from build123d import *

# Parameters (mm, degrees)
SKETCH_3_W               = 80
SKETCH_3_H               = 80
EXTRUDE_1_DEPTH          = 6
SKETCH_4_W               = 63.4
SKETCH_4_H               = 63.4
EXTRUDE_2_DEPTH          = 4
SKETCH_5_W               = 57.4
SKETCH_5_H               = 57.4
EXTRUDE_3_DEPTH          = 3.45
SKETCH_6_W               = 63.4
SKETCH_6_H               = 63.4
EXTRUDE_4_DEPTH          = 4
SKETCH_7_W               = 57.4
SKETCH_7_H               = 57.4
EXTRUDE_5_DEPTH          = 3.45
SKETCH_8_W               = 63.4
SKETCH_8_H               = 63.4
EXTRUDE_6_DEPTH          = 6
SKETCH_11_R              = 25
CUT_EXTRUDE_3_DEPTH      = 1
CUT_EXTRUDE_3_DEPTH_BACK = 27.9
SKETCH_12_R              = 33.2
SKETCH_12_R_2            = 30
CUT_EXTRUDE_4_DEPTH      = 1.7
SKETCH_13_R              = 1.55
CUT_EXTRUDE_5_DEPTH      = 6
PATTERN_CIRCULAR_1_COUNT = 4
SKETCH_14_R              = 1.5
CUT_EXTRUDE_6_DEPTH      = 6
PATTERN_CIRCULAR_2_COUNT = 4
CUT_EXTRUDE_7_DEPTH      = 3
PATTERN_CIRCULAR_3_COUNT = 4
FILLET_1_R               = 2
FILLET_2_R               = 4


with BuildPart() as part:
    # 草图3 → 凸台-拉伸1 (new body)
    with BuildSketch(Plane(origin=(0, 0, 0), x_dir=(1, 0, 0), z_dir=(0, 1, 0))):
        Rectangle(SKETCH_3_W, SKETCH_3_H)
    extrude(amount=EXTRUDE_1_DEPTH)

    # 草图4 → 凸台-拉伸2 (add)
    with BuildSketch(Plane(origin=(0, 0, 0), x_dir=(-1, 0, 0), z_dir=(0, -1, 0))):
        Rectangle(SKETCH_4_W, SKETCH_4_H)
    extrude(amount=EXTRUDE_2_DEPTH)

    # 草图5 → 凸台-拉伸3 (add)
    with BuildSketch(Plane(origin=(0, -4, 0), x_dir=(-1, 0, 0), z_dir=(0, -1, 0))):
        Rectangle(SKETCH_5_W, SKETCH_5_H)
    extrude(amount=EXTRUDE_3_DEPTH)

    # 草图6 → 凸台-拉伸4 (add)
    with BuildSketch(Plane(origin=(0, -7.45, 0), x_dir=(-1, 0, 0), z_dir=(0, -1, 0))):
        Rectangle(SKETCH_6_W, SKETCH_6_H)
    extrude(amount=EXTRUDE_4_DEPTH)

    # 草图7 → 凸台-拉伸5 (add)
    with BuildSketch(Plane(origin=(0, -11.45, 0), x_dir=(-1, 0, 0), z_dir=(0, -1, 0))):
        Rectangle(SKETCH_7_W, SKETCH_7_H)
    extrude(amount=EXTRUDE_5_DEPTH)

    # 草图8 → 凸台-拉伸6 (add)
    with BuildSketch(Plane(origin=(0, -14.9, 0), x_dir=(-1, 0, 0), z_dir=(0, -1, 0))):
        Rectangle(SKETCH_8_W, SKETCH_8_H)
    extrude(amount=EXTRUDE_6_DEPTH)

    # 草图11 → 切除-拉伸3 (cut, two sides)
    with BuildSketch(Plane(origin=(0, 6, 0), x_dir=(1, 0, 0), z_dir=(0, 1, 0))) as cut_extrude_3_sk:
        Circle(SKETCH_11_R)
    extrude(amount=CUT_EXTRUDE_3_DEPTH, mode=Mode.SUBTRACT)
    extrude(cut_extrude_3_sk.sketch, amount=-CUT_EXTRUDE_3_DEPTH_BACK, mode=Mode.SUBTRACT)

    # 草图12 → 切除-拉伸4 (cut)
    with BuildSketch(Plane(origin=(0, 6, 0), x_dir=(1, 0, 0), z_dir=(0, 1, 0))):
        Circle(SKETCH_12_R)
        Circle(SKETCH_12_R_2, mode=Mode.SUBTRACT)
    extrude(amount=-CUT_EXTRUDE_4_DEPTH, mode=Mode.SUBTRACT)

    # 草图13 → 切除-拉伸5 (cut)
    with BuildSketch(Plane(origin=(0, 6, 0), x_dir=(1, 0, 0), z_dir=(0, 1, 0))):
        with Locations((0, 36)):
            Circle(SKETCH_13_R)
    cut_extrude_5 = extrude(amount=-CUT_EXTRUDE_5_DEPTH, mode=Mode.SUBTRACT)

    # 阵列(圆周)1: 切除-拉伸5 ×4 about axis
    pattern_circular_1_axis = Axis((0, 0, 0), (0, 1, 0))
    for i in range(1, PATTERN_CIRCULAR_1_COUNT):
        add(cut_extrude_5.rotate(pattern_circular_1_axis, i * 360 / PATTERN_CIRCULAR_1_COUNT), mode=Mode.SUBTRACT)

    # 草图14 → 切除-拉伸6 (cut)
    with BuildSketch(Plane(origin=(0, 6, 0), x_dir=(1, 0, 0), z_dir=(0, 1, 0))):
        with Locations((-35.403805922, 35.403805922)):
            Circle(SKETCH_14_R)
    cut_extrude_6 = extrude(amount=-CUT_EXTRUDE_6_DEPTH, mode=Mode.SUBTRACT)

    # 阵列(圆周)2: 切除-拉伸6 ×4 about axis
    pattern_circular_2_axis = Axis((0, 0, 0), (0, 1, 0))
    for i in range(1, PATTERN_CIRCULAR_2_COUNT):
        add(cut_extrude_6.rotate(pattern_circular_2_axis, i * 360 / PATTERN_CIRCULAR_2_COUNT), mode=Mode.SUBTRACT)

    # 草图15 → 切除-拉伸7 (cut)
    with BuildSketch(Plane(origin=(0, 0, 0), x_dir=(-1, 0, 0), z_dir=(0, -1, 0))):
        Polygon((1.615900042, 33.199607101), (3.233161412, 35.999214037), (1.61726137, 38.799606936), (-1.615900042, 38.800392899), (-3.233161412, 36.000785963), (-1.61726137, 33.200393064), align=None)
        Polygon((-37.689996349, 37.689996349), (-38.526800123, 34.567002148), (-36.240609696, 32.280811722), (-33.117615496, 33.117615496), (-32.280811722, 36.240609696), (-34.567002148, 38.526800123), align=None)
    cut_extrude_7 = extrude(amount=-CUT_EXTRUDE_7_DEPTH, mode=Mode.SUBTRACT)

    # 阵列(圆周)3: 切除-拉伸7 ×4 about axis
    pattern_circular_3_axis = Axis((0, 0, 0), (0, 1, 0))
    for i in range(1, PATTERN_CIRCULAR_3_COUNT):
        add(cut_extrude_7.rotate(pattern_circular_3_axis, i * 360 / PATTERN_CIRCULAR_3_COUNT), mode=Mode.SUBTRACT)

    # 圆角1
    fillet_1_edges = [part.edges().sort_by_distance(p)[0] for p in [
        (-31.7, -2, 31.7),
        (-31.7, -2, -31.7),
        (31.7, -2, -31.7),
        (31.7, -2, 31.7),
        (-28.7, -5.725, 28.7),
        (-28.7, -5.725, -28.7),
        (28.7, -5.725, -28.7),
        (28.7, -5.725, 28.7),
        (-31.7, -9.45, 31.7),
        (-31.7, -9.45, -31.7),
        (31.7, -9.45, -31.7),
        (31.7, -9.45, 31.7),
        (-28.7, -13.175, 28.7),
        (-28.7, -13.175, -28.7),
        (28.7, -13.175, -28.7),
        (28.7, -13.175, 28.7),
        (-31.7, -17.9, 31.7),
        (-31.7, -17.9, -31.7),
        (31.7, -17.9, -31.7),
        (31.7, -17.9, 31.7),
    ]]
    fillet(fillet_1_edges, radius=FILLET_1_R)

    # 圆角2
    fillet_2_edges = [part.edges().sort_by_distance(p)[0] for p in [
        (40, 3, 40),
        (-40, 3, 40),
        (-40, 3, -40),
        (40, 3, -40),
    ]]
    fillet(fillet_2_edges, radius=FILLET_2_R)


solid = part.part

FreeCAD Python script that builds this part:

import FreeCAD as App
import Part
import Sketcher
Q = App.Units.Quantity


def edges_at(feature, points):
    """Names of the edges that pass closest to the given points."""
    edges = feature.Shape.Edges
    near = lambda p: min(range(len(edges)), key=lambda i: edges[i].distToShape(Part.Vertex(*p))[0])
    return sorted({f"Edge{near(p) + 1}" for p in points})


def add_polygon(sketch, points):
    """Adds a closed chain of lines whose ends are joined by coincident constraints."""
    first, n = sketch.GeometryCount, len(points)
    for a, b in zip(points, points[1:] + points[:1]):
        sketch.addGeometry(Part.LineSegment(App.Vector(*a, 0), App.Vector(*b, 0)), False)
    for i in range(n):
        sketch.addConstraint(Sketcher.Constraint("Coincident", first + i, 2, first + (i + 1) % n, 1))

doc = App.newDocument("Part")
params = doc.addObject("Spreadsheet::Sheet", "Params")
for row, (alias, value) in enumerate([
    ("sketch1_width", "80 mm"),
    ("pad1_length", "6 mm"),
    ("sketch2_width", "63.4 mm"),
    ("pad2_length", "4 mm"),
    ("sketch3_width", "57.4 mm"),
    ("pad3_length", "3.45 mm"),
    ("sketch4_width", "63.4 mm"),
    ("pad4_length", "4 mm"),
    ("sketch5_width", "57.4 mm"),
    ("pad5_length", "3.45 mm"),
    ("sketch6_width", "63.4 mm"),
    ("pad6_length", "6 mm"),
    ("sketch7_diameter", "50 mm"),
    ("sketch8_diameter", "60 mm"),
    ("sketch8_diameter2", "66.4 mm"),
    ("pocket2_length", "1.7 mm"),
    ("sketch9_diameter", "3.1 mm"),
    ("pocket3_length", "6 mm"),
    ("sketch10_diameter", "3 mm"),
    ("pocket4_length", "6 mm"),
    ("pocket5_length", "3 mm"),
    ("fillet_radius", "2 mm"),
    ("fillet2_radius", "4 mm"),
], start=1):
    params.set(f"A{row}", alias)
    params.set(f"B{row}", "=" + value)
    params.setAlias(f"B{row}", alias)

body = doc.addObject("PartDesign::Body", "Body")

sketch1 = body.newObject("Sketcher::SketchObject", "Sketch")
sketch1.AttachmentSupport = (doc.getObject("XZ_Plane"), [""])
sketch1.MapMode = "FlatFace"
add_polygon(sketch1, [(-40, -40), (-40, 40), (40, 40), (40, -40)])
sketch1.addConstraint(Sketcher.Constraint("Vertical", 0))
sketch1.addConstraint(Sketcher.Constraint("Horizontal", 1))
sketch1.addConstraint(Sketcher.Constraint("Vertical", 2))
sketch1.addConstraint(Sketcher.Constraint("Horizontal", 3))
sketch1.addConstraint(Sketcher.Constraint("Symmetric", 0, 2, 2, 2, -1, 1))
sketch1.addConstraint(Sketcher.Constraint("Equal", 3, 0))
sketch1.addConstraint(Sketcher.Constraint("DistanceX", 1, 1, 1, 2, Q("80 mm")))
sketch1.setExpression("Constraints[10]", "Params.sketch1_width")
pad1 = body.newObject("PartDesign::Pad", "Pad")
pad1.Profile = sketch1
pad1.setExpression("Length", "Params.pad1_length")
pad1.Reversed = True

sketch2 = body.newObject("Sketcher::SketchObject", "Sketch001")
sketch2.AttachmentSupport = (doc.getObject("XZ_Plane"), [""])
sketch2.MapMode = "FlatFace"
add_polygon(sketch2, [(31.7, -31.7), (31.7, 31.7), (-31.7, 31.7), (-31.7, -31.7)])
sketch2.addConstraint(Sketcher.Constraint("Vertical", 0))
sketch2.addConstraint(Sketcher.Constraint("Horizontal", 1))
sketch2.addConstraint(Sketcher.Constraint("Vertical", 2))
sketch2.addConstraint(Sketcher.Constraint("Horizontal", 3))
sketch2.addConstraint(Sketcher.Constraint("Symmetric", 0, 2, 2, 2, -1, 1))
sketch2.addConstraint(Sketcher.Constraint("Equal", 3, 0))
sketch2.addConstraint(Sketcher.Constraint("DistanceX", 1, 2, 1, 1, Q("63.4 mm")))
sketch2.setExpression("Constraints[10]", "Params.sketch2_width")
pad2 = body.newObject("PartDesign::Pad", "Pad001")
pad2.Profile = sketch2
pad2.setExpression("Length", "Params.pad2_length")

sketch3 = body.newObject("Sketcher::SketchObject", "Sketch002")
sketch3.AttachmentSupport = (doc.getObject("XZ_Plane"), [""])
sketch3.MapMode = "FlatFace"
sketch3.AttachmentOffset = App.Placement(App.Vector(0, 0, 4), App.Rotation())
add_polygon(sketch3, [(28.7, -28.7), (28.7, 28.7), (-28.7, 28.7), (-28.7, -28.7)])
sketch3.addConstraint(Sketcher.Constraint("Vertical", 0))
sketch3.addConstraint(Sketcher.Constraint("Horizontal", 1))
sketch3.addConstraint(Sketcher.Constraint("Vertical", 2))
sketch3.addConstraint(Sketcher.Constraint("Horizontal", 3))
sketch3.addConstraint(Sketcher.Constraint("Symmetric", 0, 2, 2, 2, -1, 1))
sketch3.addConstraint(Sketcher.Constraint("Equal", 3, 0))
sketch3.addConstraint(Sketcher.Constraint("DistanceX", 1, 2, 1, 1, Q("57.4 mm")))
sketch3.setExpression("Constraints[10]", "Params.sketch3_width")
pad3 = body.newObject("PartDesign::Pad", "Pad002")
pad3.Profile = sketch3
pad3.setExpression("Length", "Params.pad3_length")

sketch4 = body.newObject("Sketcher::SketchObject", "Sketch003")
sketch4.AttachmentSupport = (doc.getObject("XZ_Plane"), [""])
sketch4.MapMode = "FlatFace"
sketch4.AttachmentOffset = App.Placement(App.Vector(0, 0, 7.45), App.Rotation())
add_polygon(sketch4, [(31.7, -31.7), (31.7, 31.7), (-31.7, 31.7), (-31.7, -31.7)])
sketch4.addConstraint(Sketcher.Constraint("Vertical", 0))
sketch4.addConstraint(Sketcher.Constraint("Horizontal", 1))
sketch4.addConstraint(Sketcher.Constraint("Vertical", 2))
sketch4.addConstraint(Sketcher.Constraint("Horizontal", 3))
sketch4.addConstraint(Sketcher.Constraint("Symmetric", 0, 2, 2, 2, -1, 1))
sketch4.addConstraint(Sketcher.Constraint("Equal", 3, 0))
sketch4.addConstraint(Sketcher.Constraint("DistanceX", 1, 2, 1, 1, Q("63.4 mm")))
sketch4.setExpression("Constraints[10]", "Params.sketch4_width")
pad4 = body.newObject("PartDesign::Pad", "Pad003")
pad4.Profile = sketch4
pad4.setExpression("Length", "Params.pad4_length")

sketch5 = body.newObject("Sketcher::SketchObject", "Sketch004")
sketch5.AttachmentSupport = (doc.getObject("XZ_Plane"), [""])
sketch5.MapMode = "FlatFace"
sketch5.AttachmentOffset = App.Placement(App.Vector(0, 0, 11.45), App.Rotation())
add_polygon(sketch5, [(28.7, -28.7), (28.7, 28.7), (-28.7, 28.7), (-28.7, -28.7)])
sketch5.addConstraint(Sketcher.Constraint("Vertical", 0))
sketch5.addConstraint(Sketcher.Constraint("Horizontal", 1))
sketch5.addConstraint(Sketcher.Constraint("Vertical", 2))
sketch5.addConstraint(Sketcher.Constraint("Horizontal", 3))
sketch5.addConstraint(Sketcher.Constraint("Symmetric", 0, 2, 2, 2, -1, 1))
sketch5.addConstraint(Sketcher.Constraint("Equal", 3, 0))
sketch5.addConstraint(Sketcher.Constraint("DistanceX", 1, 2, 1, 1, Q("57.4 mm")))
sketch5.setExpression("Constraints[10]", "Params.sketch5_width")
pad5 = body.newObject("PartDesign::Pad", "Pad004")
pad5.Profile = sketch5
pad5.setExpression("Length", "Params.pad5_length")

sketch6 = body.newObject("Sketcher::SketchObject", "Sketch005")
sketch6.AttachmentSupport = (doc.getObject("XZ_Plane"), [""])
sketch6.MapMode = "FlatFace"
sketch6.AttachmentOffset = App.Placement(App.Vector(0, 0, 14.9), App.Rotation())
add_polygon(sketch6, [(31.7, -31.7), (31.7, 31.7), (-31.7, 31.7), (-31.7, -31.7)])
sketch6.addConstraint(Sketcher.Constraint("Vertical", 0))
sketch6.addConstraint(Sketcher.Constraint("Horizontal", 1))
sketch6.addConstraint(Sketcher.Constraint("Vertical", 2))
sketch6.addConstraint(Sketcher.Constraint("Horizontal", 3))
sketch6.addConstraint(Sketcher.Constraint("Symmetric", 0, 2, 2, 2, -1, 1))
sketch6.addConstraint(Sketcher.Constraint("Equal", 3, 0))
sketch6.addConstraint(Sketcher.Constraint("DistanceX", 1, 2, 1, 1, Q("63.4 mm")))
sketch6.setExpression("Constraints[10]", "Params.sketch6_width")
pad6 = body.newObject("PartDesign::Pad", "Pad005")
pad6.Profile = sketch6
pad6.setExpression("Length", "Params.pad6_length")

sketch7 = body.newObject("Sketcher::SketchObject", "Sketch006")
sketch7.AttachmentSupport = (doc.getObject("XZ_Plane"), [""])
sketch7.MapMode = "FlatFace"
sketch7.AttachmentOffset = App.Placement(App.Vector(0, 0, -6), App.Rotation())
sketch7.addGeometry(Part.Circle(App.Vector(0, 0, 0), App.Vector(0, 0, 1), 25), False)
sketch7.addConstraint(Sketcher.Constraint("Coincident", 0, 3, -1, 1))
sketch7.addConstraint(Sketcher.Constraint("Diameter", 0, Q("50 mm")))
sketch7.setExpression("Constraints[1]", "Params.sketch7_diameter")
pocket1 = body.newObject("PartDesign::Pocket", "Pocket")
pocket1.Profile = sketch7
pocket1.Type = "ThroughAll"
pocket1.Midplane = True

sketch8 = body.newObject("Sketcher::SketchObject", "Sketch007")
sketch8.AttachmentSupport = (doc.getObject("XZ_Plane"), [""])
sketch8.MapMode = "FlatFace"
sketch8.AttachmentOffset = App.Placement(App.Vector(0, 0, -6), App.Rotation())
sketch8.addGeometry(Part.Circle(App.Vector(0, 0, 0), App.Vector(0, 0, 1), 33.2), False)
sketch8.addGeometry(Part.Circle(App.Vector(0, 0, 0), App.Vector(0, 0, 1), 30), False)
sketch8.addConstraint(Sketcher.Constraint("Coincident", 0, 3, -1, 1))
sketch8.addConstraint(Sketcher.Constraint("Coincident", 1, 3, -1, 1))
sketch8.addConstraint(Sketcher.Constraint("Diameter", 1, Q("60 mm")))
sketch8.addConstraint(Sketcher.Constraint("Diameter", 0, Q("66.4 mm")))
sketch8.setExpression("Constraints[2]", "Params.sketch8_diameter")
sketch8.setExpression("Constraints[3]", "Params.sketch8_diameter2")
pocket2 = body.newObject("PartDesign::Pocket", "Pocket001")
pocket2.Profile = sketch8
pocket2.setExpression("Length", "Params.pocket2_length")
pocket2.Reversed = True

sketch9 = body.newObject("Sketcher::SketchObject", "Sketch008")
sketch9.AttachmentSupport = (doc.getObject("XZ_Plane"), [""])
sketch9.MapMode = "FlatFace"
sketch9.AttachmentOffset = App.Placement(App.Vector(0, 0, -6), App.Rotation())
sketch9.addGeometry(Part.Circle(App.Vector(0, -36, 0), App.Vector(0, 0, 1), 1.55), False)
sketch9.addConstraint(Sketcher.Constraint("PointOnObject", 0, 3, -2))
sketch9.addConstraint(Sketcher.Constraint("Diameter", 0, Q("3.1 mm")))
sketch9.addConstraint(Sketcher.Constraint("DistanceY", 0, 3, -1, 1, Q("36 mm")))
sketch9.setExpression("Constraints[1]", "Params.sketch9_diameter")
pocket3 = body.newObject("PartDesign::Pocket", "Pocket002")
pocket3.Profile = sketch9
pocket3.setExpression("Length", "Params.pocket3_length")
pocket3.Reversed = True
doc.recompute()

polarpattern = body.newObject("PartDesign::PolarPattern", "PolarPattern")
polarpattern.Originals = [pocket3]
polarpattern.Axis = (doc.getObject("Y_Axis"), [""])
polarpattern.Angle = 360
polarpattern.Occurrences = 4
body.Tip = polarpattern

sketch10 = body.newObject("Sketcher::SketchObject", "Sketch009")
sketch10.AttachmentSupport = (doc.getObject("XZ_Plane"), [""])
sketch10.MapMode = "FlatFace"
sketch10.AttachmentOffset = App.Placement(App.Vector(0, 0, -6), App.Rotation())
sketch10.addGeometry(Part.Circle(App.Vector(-35.403806, -35.403806, 0), App.Vector(0, 0, 1), 1.5), False)
sketch10.addConstraint(Sketcher.Constraint("Diameter", 0, Q("3 mm")))
sketch10.addConstraint(Sketcher.Constraint("DistanceX", 0, 3, -1, 1, Q("35.403806 mm")))
sketch10.addConstraint(Sketcher.Constraint("DistanceY", 0, 3, -1, 1, Q("35.403806 mm")))
sketch10.setExpression("Constraints[0]", "Params.sketch10_diameter")
pocket4 = body.newObject("PartDesign::Pocket", "Pocket003")
pocket4.Profile = sketch10
pocket4.setExpression("Length", "Params.pocket4_length")
pocket4.Reversed = True
doc.recompute()

polarpattern2 = body.newObject("PartDesign::PolarPattern", "PolarPattern001")
polarpattern2.Originals = [pocket4]
polarpattern2.Axis = (doc.getObject("Y_Axis"), [""])
polarpattern2.Angle = 360
polarpattern2.Occurrences = 4
body.Tip = polarpattern2

sketch11 = body.newObject("Sketcher::SketchObject", "Sketch010")
sketch11.AttachmentSupport = (doc.getObject("XZ_Plane"), [""])
sketch11.MapMode = "FlatFace"
add_polygon(sketch11, [(-1.6159, -33.199607), (-3.233161, -35.999214), (-1.617261, -38.799607), (1.6159, -38.800393), (3.233161, -36.000786), (1.617261, -33.200393)])
add_polygon(sketch11, [(37.689996, -37.689996), (38.5268, -34.567002), (36.24061, -32.280812), (33.117615, -33.117615), (32.280812, -36.24061), (34.567002, -38.5268)])
sketch11.addConstraint(Sketcher.Constraint("Parallel", 0, 3))
sketch11.addConstraint(Sketcher.Constraint("Parallel", 1, 4))
sketch11.addConstraint(Sketcher.Constraint("Parallel", 2, 5))
sketch11.addConstraint(Sketcher.Constraint("Parallel", 6, 9))
sketch11.addConstraint(Sketcher.Constraint("Parallel", 7, 10))
sketch11.addConstraint(Sketcher.Constraint("Parallel", 8, 11))
sketch11.addConstraint(Sketcher.Constraint("Equal", 0, 1))
sketch11.addConstraint(Sketcher.Constraint("Equal", 1, 2))
sketch11.addConstraint(Sketcher.Constraint("Equal", 2, 3))
sketch11.addConstraint(Sketcher.Constraint("Equal", 5, 6))
sketch11.addConstraint(Sketcher.Constraint("Equal", 6, 7))
sketch11.addConstraint(Sketcher.Constraint("Equal", 7, 8))
sketch11.addConstraint(Sketcher.Constraint("Equal", 8, 9))
sketch11.addConstraint(Sketcher.Constraint("Angle", 6, Q("75 deg")))
sketch11.addConstraint(Sketcher.Constraint("Angle", 7, Q("135 deg")))
sketch11.addConstraint(Sketcher.Constraint("Angle", 8, Q("-165 deg")))
sketch11.addConstraint(Sketcher.Constraint("DistanceY", 2, 2, 4, 2, Q("5.6 mm")))
sketch11.addConstraint(Sketcher.Constraint("DistanceX", -1, 1, 2, 2, Q("1.6159 mm")))
sketch11.addConstraint(Sketcher.Constraint("DistanceX", 5, 2, -1, 1, Q("1.6159 mm")))
sketch11.addConstraint(Sketcher.Constraint("DistanceX", -1, 1, 6, 2, Q("38.5268 mm")))
sketch11.addConstraint(Sketcher.Constraint("DistanceY", 10, 2, -1, 1, Q("38.5268 mm")))
sketch11.addConstraint(Sketcher.Constraint("DistanceX", 0, 2, 1, 2, Q("1.6159 mm")))
sketch11.addConstraint(Sketcher.Constraint("DistanceY", 2, 2, 0, 2, Q("2.801179 mm")))
sketch11.addConstraint(Sketcher.Constraint("DistanceY", 6, 2, 4, 2, Q("1.366609 mm")))
pocket5 = body.newObject("PartDesign::Pocket", "Pocket004")
pocket5.Profile = sketch11
pocket5.setExpression("Length", "Params.pocket5_length")
doc.recompute()

polarpattern3 = body.newObject("PartDesign::PolarPattern", "PolarPattern002")
polarpattern3.Originals = [pocket5]
polarpattern3.Axis = (doc.getObject("Y_Axis"), [""])
polarpattern3.Angle = 360
polarpattern3.Occurrences = 4
body.Tip = polarpattern3
doc.recompute()

fillet = body.newObject("PartDesign::Fillet", "Fillet")
fillet.Base = (polarpattern3, edges_at(polarpattern3, [
    (-31.7, -2, 31.7),
    (-31.7, -2, -31.7),
    (31.7, -2, -31.7),
    (31.7, -2, 31.7),
    (-28.7, -5.725, 28.7),
    (-28.7, -5.725, -28.7),
    (28.7, -5.725, -28.7),
    (28.7, -5.725, 28.7),
    (-31.7, -9.45, 31.7),
    (-31.7, -9.45, -31.7),
    (31.7, -9.45, -31.7),
    (31.7, -9.45, 31.7),
    (-28.7, -13.175, 28.7),
    (-28.7, -13.175, -28.7),
    (28.7, -13.175, -28.7),
    (28.7, -13.175, 28.7),
    (-31.7, -17.9, 31.7),
    (-31.7, -17.9, -31.7),
    (31.7, -17.9, -31.7),
    (31.7, -17.9, 31.7),
]))
fillet.setExpression("Radius", "Params.fillet_radius")
doc.recompute()

fillet2 = body.newObject("PartDesign::Fillet", "Fillet001")
fillet2.Base = (fillet, edges_at(fillet, [
    (40, 3, 40),
    (-40, 3, 40),
    (-40, 3, -40),
    (40, 3, -40),
]))
fillet2.setExpression("Radius", "Params.fillet2_radius")

doc.recompute()
